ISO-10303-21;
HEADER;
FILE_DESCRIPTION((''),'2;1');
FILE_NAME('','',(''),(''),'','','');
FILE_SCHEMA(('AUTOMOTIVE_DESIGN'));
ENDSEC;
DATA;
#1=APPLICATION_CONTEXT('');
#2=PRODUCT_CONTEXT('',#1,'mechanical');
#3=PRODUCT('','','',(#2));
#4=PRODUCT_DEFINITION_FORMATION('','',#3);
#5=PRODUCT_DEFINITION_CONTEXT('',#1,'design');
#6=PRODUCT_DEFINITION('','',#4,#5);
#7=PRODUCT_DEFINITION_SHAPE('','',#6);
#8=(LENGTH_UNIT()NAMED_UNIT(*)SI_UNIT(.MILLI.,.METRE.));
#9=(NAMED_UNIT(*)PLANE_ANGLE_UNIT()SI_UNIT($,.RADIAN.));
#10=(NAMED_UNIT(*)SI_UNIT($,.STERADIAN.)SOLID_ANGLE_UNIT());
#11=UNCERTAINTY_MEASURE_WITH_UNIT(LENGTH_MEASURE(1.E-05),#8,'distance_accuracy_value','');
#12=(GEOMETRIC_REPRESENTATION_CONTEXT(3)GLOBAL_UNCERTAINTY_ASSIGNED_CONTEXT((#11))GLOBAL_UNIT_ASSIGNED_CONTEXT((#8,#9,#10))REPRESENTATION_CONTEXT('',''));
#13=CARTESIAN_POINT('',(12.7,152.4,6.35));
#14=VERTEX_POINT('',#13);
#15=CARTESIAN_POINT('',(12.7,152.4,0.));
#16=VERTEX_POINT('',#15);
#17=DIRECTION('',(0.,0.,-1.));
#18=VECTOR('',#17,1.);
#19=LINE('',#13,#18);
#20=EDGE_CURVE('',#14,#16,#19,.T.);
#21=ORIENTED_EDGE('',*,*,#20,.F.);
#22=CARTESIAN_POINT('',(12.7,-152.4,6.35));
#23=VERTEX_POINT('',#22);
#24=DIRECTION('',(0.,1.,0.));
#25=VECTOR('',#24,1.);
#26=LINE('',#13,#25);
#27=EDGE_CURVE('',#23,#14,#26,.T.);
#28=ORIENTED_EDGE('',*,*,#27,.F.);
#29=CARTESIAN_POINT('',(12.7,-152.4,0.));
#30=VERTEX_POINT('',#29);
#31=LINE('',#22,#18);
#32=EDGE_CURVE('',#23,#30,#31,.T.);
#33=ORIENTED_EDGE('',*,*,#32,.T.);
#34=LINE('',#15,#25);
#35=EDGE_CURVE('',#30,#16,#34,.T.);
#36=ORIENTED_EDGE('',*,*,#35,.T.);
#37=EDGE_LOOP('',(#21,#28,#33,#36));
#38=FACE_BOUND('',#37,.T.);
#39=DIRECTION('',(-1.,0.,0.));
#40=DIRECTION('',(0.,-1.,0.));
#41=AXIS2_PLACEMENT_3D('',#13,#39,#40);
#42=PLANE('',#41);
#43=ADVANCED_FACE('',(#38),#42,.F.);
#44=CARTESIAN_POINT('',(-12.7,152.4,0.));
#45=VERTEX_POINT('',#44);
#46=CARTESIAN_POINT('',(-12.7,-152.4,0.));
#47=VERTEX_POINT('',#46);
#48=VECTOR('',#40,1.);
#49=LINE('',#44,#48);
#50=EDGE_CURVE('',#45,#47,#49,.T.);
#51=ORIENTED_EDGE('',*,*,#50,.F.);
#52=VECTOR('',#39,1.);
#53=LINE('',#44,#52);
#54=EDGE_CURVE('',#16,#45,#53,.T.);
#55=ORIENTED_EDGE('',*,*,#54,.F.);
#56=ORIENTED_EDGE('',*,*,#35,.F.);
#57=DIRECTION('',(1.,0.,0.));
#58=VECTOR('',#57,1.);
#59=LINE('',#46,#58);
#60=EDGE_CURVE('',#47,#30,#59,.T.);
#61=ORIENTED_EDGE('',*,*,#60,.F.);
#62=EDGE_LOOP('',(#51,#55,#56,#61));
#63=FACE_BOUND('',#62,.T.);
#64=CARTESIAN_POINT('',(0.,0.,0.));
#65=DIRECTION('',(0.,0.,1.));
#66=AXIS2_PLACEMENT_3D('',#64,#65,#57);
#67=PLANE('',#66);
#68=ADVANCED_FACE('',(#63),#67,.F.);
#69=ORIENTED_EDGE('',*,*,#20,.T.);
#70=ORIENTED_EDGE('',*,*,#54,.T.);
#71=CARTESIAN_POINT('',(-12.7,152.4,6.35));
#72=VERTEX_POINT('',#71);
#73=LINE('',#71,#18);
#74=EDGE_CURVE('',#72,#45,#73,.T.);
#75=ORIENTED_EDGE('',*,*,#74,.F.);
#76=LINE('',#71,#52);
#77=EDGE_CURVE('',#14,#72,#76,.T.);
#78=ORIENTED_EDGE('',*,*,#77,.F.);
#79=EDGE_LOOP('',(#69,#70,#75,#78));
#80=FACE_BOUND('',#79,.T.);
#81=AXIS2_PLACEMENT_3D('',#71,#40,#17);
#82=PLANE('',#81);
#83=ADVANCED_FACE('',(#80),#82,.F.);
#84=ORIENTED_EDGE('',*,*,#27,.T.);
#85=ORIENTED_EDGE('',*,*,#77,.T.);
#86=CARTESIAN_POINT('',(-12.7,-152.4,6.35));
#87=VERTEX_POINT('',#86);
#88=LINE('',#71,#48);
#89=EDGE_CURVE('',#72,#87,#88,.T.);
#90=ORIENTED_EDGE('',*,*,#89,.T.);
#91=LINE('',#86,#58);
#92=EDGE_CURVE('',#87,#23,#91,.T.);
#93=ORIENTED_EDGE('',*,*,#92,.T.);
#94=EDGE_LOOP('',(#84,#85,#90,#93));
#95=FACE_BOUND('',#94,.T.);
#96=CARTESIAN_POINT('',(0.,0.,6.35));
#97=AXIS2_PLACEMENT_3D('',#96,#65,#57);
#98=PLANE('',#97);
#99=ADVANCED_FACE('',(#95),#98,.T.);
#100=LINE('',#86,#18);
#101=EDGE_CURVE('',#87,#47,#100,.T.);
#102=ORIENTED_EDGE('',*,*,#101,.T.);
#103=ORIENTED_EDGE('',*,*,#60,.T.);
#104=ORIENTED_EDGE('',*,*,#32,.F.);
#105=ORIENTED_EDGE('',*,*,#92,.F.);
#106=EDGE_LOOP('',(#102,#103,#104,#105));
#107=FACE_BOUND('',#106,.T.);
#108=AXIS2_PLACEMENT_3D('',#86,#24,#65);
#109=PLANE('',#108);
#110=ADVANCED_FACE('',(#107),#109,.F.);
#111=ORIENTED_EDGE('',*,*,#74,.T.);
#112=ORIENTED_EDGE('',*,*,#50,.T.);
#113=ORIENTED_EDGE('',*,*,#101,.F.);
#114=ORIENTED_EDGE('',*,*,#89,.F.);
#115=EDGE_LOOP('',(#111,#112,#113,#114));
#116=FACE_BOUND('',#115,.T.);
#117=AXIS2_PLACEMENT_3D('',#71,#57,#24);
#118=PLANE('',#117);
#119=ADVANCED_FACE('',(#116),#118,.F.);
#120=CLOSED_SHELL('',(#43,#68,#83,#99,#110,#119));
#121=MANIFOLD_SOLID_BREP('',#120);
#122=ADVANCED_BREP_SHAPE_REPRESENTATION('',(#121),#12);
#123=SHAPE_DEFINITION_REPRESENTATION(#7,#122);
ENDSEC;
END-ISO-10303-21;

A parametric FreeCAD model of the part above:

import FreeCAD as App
import Part
import Sketcher

V = App.Vector
Q = App.Units.Quantity

doc = App.newDocument("Part")
body = doc.addObject("PartDesign::Body", "Body")

# Sketch on XY plane
sketch1 = body.newObject("Sketcher::SketchObject", "Sketch")
sketch1.AttachmentSupport = (doc.getObject("XY_Plane"), [""])
sketch1.MapMode = "FlatFace"
sketch1.addGeometry([
    Part.LineSegment(V(-13, 152, 0), V(-13, -152, 0)),
    Part.LineSegment(V(-13, -152, 0), V(13, -152, 0)),
    Part.LineSegment(V(13, -152, 0), V(13, 152, 0)),
    Part.LineSegment(V(13, 152, 0), V(-13, 152, 0)),
], False)
sketch1.addConstraint([
    Sketcher.Constraint("Coincident", 0, 2, 1, 1),
    Sketcher.Constraint("Coincident", 1, 2, 2, 1),
    Sketcher.Constraint("Coincident", 2, 2, 3, 1),
    Sketcher.Constraint("Coincident", 3, 2, 0, 1),
    Sketcher.Constraint("Vertical", 0),
    Sketcher.Constraint("Horizontal", 1),
    Sketcher.Constraint("Vertical", 2),
    Sketcher.Constraint("Horizontal", 3),
    Sketcher.Constraint("Symmetric", 0, 2, 2, 2, -1, 1),
    Sketcher.Constraint("DistanceX", 1, 1, 1, 2, Q("1 in")),
    Sketcher.Constraint("DistanceY", 0, 2, 0, 1, Q("12 in")),
])
pad1 = body.newObject("PartDesign::Pad", "Pad")
pad1.Profile = sketch1
pad1.Length = Q("0.25 in")

doc.recompute()
